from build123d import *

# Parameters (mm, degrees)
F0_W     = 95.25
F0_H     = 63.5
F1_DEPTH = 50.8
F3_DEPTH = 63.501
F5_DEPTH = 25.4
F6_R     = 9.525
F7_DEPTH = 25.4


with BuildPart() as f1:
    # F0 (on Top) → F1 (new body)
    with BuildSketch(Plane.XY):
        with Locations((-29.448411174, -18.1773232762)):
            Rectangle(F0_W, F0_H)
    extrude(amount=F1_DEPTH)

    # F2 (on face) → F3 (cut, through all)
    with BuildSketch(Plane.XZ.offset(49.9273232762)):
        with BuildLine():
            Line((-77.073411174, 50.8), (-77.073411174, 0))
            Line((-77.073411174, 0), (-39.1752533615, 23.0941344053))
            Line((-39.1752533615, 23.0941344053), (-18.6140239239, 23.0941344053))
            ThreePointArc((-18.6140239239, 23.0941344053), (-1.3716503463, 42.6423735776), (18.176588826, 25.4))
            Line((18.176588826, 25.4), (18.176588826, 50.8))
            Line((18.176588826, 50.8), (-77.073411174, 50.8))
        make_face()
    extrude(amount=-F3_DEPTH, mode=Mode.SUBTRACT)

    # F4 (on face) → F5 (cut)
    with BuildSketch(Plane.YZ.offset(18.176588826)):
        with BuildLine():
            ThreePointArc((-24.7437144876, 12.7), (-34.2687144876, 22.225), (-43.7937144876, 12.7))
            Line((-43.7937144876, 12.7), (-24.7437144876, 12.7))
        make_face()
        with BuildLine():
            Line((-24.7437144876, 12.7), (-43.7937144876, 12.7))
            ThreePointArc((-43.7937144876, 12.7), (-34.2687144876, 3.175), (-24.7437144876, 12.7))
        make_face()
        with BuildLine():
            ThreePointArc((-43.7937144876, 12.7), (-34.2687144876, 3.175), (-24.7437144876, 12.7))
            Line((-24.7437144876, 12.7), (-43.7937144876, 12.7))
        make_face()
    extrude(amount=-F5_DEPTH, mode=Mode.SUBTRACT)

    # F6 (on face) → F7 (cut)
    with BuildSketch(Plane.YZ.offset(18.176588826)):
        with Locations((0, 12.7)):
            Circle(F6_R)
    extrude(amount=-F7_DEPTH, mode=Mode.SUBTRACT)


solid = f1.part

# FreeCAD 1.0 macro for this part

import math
import FreeCAD as App
import Part
import Sketcher
from FreeCAD import Vector
Q = App.Units.Quantity


def add_polygon(sketch, points):
    """Adds a closed chain of lines whose ends are joined by coincident constraints."""
    first, n = sketch.GeometryCount, len(points)
    for a, b in zip(points, points[1:] + points[:1]):
        sketch.addGeometry(Part.LineSegment(App.Vector(*a, 0), App.Vector(*b, 0)), False)
    for i in range(n):
        sketch.addConstraint(Sketcher.Constraint("Coincident", first + i, 2, first + (i + 1) % n, 1))

doc = App.newDocument("Part")
body = doc.addObject("PartDesign::Body", "Body")

# Sketch on XY plane
sketch1 = body.newObject("Sketcher::SketchObject", "Sketch")
sketch1.AttachmentSupport = (doc.getObject("XY_Plane"), [""])
sketch1.MapMode = "FlatFace"
add_polygon(sketch1, [(-77.073411, 13.572677), (-77.073411, -49.927323), (18.176589, -49.927323), (18.176589, 13.572677)])  # lines 0-3
sketch1.addConstraint([
    Sketcher.Constraint("Vertical", 0),
    Sketcher.Constraint("Horizontal", 1),
    Sketcher.Constraint("Vertical", 2),
    Sketcher.Constraint("Horizontal", 3),
    Sketcher.Constraint("DistanceY", 0, 2, 0, 1, Q("2.5 in")),
    Sketcher.Constraint("DistanceX", 1, 1, 1, 2, Q("3.75 in")),
    Sketcher.Constraint("DistanceX", 0, 2, -1, 1, Q("77.073411 mm")),
    Sketcher.Constraint("DistanceY", 0, 2, -1, 1, Q("49.927323 mm")),
])
pad1 = body.newObject("PartDesign::Pad", "Pad")
pad1.Profile = sketch1
pad1.Length = Q("2 in")

# Sketch on XZ plane
sketch2 = body.newObject("Sketcher::SketchObject", "Sketch001")
sketch2.AttachmentSupport = (doc.getObject("XZ_Plane"), [""])
sketch2.MapMode = "FlatFace"
sketch2.AttachmentOffset = App.Placement(Vector(0, 0, 49.927323), App.Rotation())
sketch2.addGeometry([
    Part.LineSegment(Vector(-77.073411, 50.8, 0), Vector(-77.073411, 0, 0)),  # 0
    Part.LineSegment(Vector(-77.073411, 0, 0), Vector(-39.175253, 23.094134, 0)),  # 1
    Part.LineSegment(Vector(-39.175253, 23.094134, 0), Vector(-18.614024, 23.094134, 0)),  # 2
    Part.ArcOfCircle(Part.Circle(Vector(-0.218718, 24.247067, 0), Vector(0, 0, 1), 18.431401), math.radians(3.586344), math.radians(183.586344)),  # 3
    Part.LineSegment(Vector(18.176589, 25.4, 0), Vector(18.176589, 50.8, 0)),  # 4
    Part.LineSegment(Vector(18.176589, 50.8, 0), Vector(-77.073411, 50.8, 0)),  # 5
], False)
sketch2.addConstraint([
    Sketcher.Constraint("Coincident", 0, 2, 1, 1),
    Sketcher.Constraint("Coincident", 1, 2, 2, 1),
    Sketcher.Constraint("Coincident", 2, 2, 3, 2),
    Sketcher.Constraint("Coincident", 3, 1, 4, 1),
    Sketcher.Constraint("Coincident", 4, 2, 5, 1),
    Sketcher.Constraint("Coincident", 5, 2, 0, 1),
    Sketcher.Constraint("Vertical", 0),
    Sketcher.Constraint("Horizontal", 2),
    Sketcher.Constraint("Vertical", 4),
    Sketcher.Constraint("Horizontal", 5),
    Sketcher.Constraint("PointOnObject", 0, 2, -1),
    Sketcher.Constraint("DistanceY", 0, 2, 0, 1, Q("2 in")),
    Sketcher.Constraint("DistanceY", 4, 1, 4, 2, Q("1 in")),
    Sketcher.Constraint("DistanceX", 5, 2, 5, 1, Q("3.75 in")),
    Sketcher.Constraint("Radius", 3, Q("18.431401 mm")),
    Sketcher.Constraint("DistanceX", 2, 1, 2, 2, Q("20.561229 mm")),
    Sketcher.Constraint("Distance", 1, Q("44.380282 mm")),
    Sketcher.Constraint("DistanceX", 0, 2, -1, 1, Q("77.073411 mm")),
    Sketcher.Constraint("DistanceX", 3, 3, -1, 1, Q("0.218718 mm")),
])
pocket1 = body.newObject("PartDesign::Pocket", "Pocket")
pocket1.Profile = sketch2
pocket1.Type = "ThroughAll"

# Sketch on YZ plane
sketch3 = body.newObject("Sketcher::SketchObject", "Sketch002")
sketch3.AttachmentSupport = (doc.getObject("YZ_Plane"), [""])
sketch3.MapMode = "FlatFace"
sketch3.AttachmentOffset = App.Placement(Vector(0, 0, 18.176589), App.Rotation())
sketch3.addGeometry(Part.Circle(Vector(-34.268714, 12.7, 0), Vector(0, 0, 1), 9.525), False)
sketch3.addConstraint([
    Sketcher.Constraint("Diameter", 0, Q("0.75 in")),
    Sketcher.Constraint("DistanceY", -1, 1, 0, 3, Q("0.5 in")),
    Sketcher.Constraint("DistanceX", 0, 3, -1, 1, Q("34.268714 mm")),
])
pocket2 = body.newObject("PartDesign::Pocket", "Pocket001")
pocket2.Profile = sketch3
pocket2.Length = Q("1 in")

# Sketch on YZ plane
sketch4 = body.newObject("Sketcher::SketchObject", "Sketch003")
sketch4.AttachmentSupport = (doc.getObject("YZ_Plane"), [""])
sketch4.MapMode = "FlatFace"
sketch4.AttachmentOffset = App.Placement(Vector(0, 0, 18.176589), App.Rotation())
sketch4.addGeometry(Part.Circle(Vector(0, 12.7, 0), Vector(0, 0, 1), 9.525), False)
sketch4.addConstraint([
    Sketcher.Constraint("PointOnObject", 0, 3, -2),
    Sketcher.Constraint("Diameter", 0, Q("0.75 in")),
    Sketcher.Constraint("DistanceY", -1, 1, 0, 3, Q("0.5 in")),
])
pocket3 = body.newObject("PartDesign::Pocket", "Pocket002")
pocket3.Profile = sketch4
pocket3.Length = Q("1 in")

doc.recompute()
